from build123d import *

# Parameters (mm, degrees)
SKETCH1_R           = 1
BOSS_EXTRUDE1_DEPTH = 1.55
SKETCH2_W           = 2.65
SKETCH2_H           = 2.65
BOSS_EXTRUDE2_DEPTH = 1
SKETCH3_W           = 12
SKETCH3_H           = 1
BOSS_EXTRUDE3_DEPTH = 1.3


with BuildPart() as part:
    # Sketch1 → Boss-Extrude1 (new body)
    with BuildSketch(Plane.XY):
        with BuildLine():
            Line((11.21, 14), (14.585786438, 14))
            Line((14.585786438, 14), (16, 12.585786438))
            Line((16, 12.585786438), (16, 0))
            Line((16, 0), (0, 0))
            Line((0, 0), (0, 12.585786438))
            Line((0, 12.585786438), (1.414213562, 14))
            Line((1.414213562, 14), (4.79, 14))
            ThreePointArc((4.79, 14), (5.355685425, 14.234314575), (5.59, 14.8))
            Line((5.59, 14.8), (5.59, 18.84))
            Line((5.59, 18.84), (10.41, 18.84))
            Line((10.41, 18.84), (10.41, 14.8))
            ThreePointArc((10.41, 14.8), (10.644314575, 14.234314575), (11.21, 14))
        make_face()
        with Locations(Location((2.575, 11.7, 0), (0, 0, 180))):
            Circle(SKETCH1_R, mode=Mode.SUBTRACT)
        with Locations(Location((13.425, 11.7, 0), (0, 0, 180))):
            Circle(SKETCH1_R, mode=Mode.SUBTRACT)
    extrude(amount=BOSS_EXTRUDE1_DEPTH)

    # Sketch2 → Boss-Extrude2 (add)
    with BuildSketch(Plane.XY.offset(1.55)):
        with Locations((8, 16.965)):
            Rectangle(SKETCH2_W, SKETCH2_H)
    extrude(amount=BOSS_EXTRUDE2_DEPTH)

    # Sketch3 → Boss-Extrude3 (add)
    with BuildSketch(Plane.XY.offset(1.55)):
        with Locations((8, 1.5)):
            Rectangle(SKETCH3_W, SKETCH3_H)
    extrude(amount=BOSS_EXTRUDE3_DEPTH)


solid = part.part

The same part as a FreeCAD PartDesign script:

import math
import FreeCAD as App
import Part
import Sketcher
from FreeCAD import Vector


def add_polygon(sketch, points):
    """Adds a closed chain of lines whose ends are joined by coincident constraints."""
    first, n = sketch.GeometryCount, len(points)
    for a, b in zip(points, points[1:] + points[:1]):
        sketch.addGeometry(Part.LineSegment(App.Vector(*a, 0), App.Vector(*b, 0)), False)
    for i in range(n):
        sketch.addConstraint(Sketcher.Constraint("Coincident", first + i, 2, first + (i + 1) % n, 1))

doc = App.newDocument("Part")
body = doc.addObject("PartDesign::Body", "Body")

# Sketch on XY plane
sketch1 = body.newObject("Sketcher::SketchObject", "Sketch")
sketch1.AttachmentSupport = (doc.getObject("XY_Plane"), [""])
sketch1.MapMode = "FlatFace"
sketch1.addGeometry([
    Part.LineSegment(Vector(14.6, 14, 0), Vector(11.2, 14, 0)),  # 0
    Part.ArcOfCircle(Part.Circle(Vector(11.2, 14.8, 0), Vector(0, 0, 1), 0.8), math.radians(180), math.radians(270)),  # 1
    Part.LineSegment(Vector(10.4, 14.8, 0), Vector(10.4, 18.8, 0)),  # 2
    Part.LineSegment(Vector(10.4, 18.8, 0), Vector(5.6, 18.8, 0)),  # 3
    Part.LineSegment(Vector(5.6, 18.8, 0), Vector(5.6, 14.8, 0)),  # 4
    Part.ArcOfCircle(Part.Circle(Vector(4.8, 14.8, 0), Vector(0, 0, 1), 0.8), math.radians(-90), math.radians(0)),  # 5
    Part.LineSegment(Vector(4.8, 14, 0), Vector(1.4, 14, 0)),  # 6
    Part.LineSegment(Vector(1.4, 14, 0), Vector(0, 12.6, 0)),  # 7
    Part.LineSegment(Vector(0, 12.6, 0), Vector(0, 0, 0)),  # 8
    Part.LineSegment(Vector(0, 0, 0), Vector(16, 0, 0)),  # 9
    Part.LineSegment(Vector(16, 0, 0), Vector(16, 12.6, 0)),  # 10
    Part.LineSegment(Vector(16, 12.6, 0), Vector(14.6, 14, 0)),  # 11
    Part.Circle(Vector(13.4, 11.7, 0), Vector(0, 0, 1), 1),  # 12
    Part.Circle(Vector(2.6, 11.7, 0), Vector(0, 0, 1), 1),  # 13
], False)
sketch1.addConstraint([
    Sketcher.Constraint("Tangent", 0, 2, 1, 2),
    Sketcher.Constraint("Tangent", 1, 1, 2, 1),
    Sketcher.Constraint("Coincident", 2, 2, 3, 1),
    Sketcher.Constraint("Coincident", 3, 2, 4, 1),
    Sketcher.Constraint("Tangent", 4, 2, 5, 2),
    Sketcher.Constraint("Tangent", 5, 1, 6, 1),
    Sketcher.Constraint("Coincident", 6, 2, 7, 1),
    Sketcher.Constraint("Coincident", 7, 2, 8, 1),
    Sketcher.Constraint("Coincident", 8, 2, 9, 1),
    Sketcher.Constraint("Coincident", 9, 2, 10, 1),
    Sketcher.Constraint("Coincident", 10, 2, 11, 1),
    Sketcher.Constraint("Coincident", 11, 2, 0, 1),
    Sketcher.Constraint("Horizontal", 0),
    Sketcher.Constraint("Vertical", 2),
    Sketcher.Constraint("Horizontal", 3),
    Sketcher.Constraint("Vertical", 4),
    Sketcher.Constraint("Horizontal", 6),
    Sketcher.Constraint("Vertical", 8),
    Sketcher.Constraint("Horizontal", 9),
    Sketcher.Constraint("Vertical", 10),
    Sketcher.Constraint("Coincident", 8, 2, -1, 1),
    Sketcher.Constraint("Equal", 1, 5),
    Sketcher.Constraint("Equal", 12, 13),
    Sketcher.Constraint("Perpendicular", 7, 11),
    Sketcher.Constraint("Horizontal", 1, 3, 5, 3),
    Sketcher.Constraint("Horizontal", 12, 3, 13, 3),
    Sketcher.Constraint("Horizontal", 7, 2, 10, 2),
    Sketcher.Constraint("Equal", 0, 6),
    Sketcher.Constraint("Equal", 7, 11),
    Sketcher.Constraint("Diameter", 12, 2.0),
    Sketcher.Constraint("Radius", 1, 0.8),
    Sketcher.Constraint("DistanceX", 9, 1, 9, 2, 16.0),
    Sketcher.Constraint("Distance", 7, 2.0),
    Sketcher.Constraint("DistanceY", -1, 1, 0, 2, 14.0),
    Sketcher.Constraint("DistanceX", 3, 2, 3, 1, 4.82),
    Sketcher.Constraint("DistanceY", 2, 1, 2, 2, 4.04),
    Sketcher.Constraint("DistanceY", -1, 1, 12, 3, 11.7),
    Sketcher.Constraint("DistanceX", 13, 3, 12, 3, 10.85),
    Sketcher.Constraint("DistanceX", -1, 1, 12, 3, 13.425),
])
pad1 = body.newObject("PartDesign::Pad", "Pad")
pad1.Profile = sketch1
pad1.Length = 1.55

# Sketch on XY plane
sketch2 = body.newObject("Sketcher::SketchObject", "Sketch001")
sketch2.AttachmentSupport = (doc.getObject("XY_Plane"), [""])
sketch2.MapMode = "FlatFace"
sketch2.AttachmentOffset = App.Placement(Vector(0, 0, 1.55), App.Rotation())
add_polygon(sketch2, [(6.7, 18.3), (6.7, 15.6), (9.3, 15.6), (9.3, 18.3)])  # lines 0-3
sketch2.addConstraint([
    Sketcher.Constraint("Vertical", 0),
    Sketcher.Constraint("Horizontal", 1),
    Sketcher.Constraint("Vertical", 2),
    Sketcher.Constraint("Horizontal", 3),
    Sketcher.Constraint("Equal", 3, 0),
    Sketcher.Constraint("DistanceX", 1, 1, 1, 2, 2.65),
    Sketcher.Constraint("DistanceY", -1, 1, 0, 2, 15.64),
    Sketcher.Constraint("DistanceX", -1, 1, 0, 2, 6.675),
])
pad2 = body.newObject("PartDesign::Pad", "Pad001")
pad2.Profile = sketch2
pad2.Length = 1

# Sketch on XY plane
sketch3 = body.newObject("Sketcher::SketchObject", "Sketch002")
sketch3.AttachmentSupport = (doc.getObject("XY_Plane"), [""])
sketch3.MapMode = "FlatFace"
sketch3.AttachmentOffset = App.Placement(Vector(0, 0, 1.55), App.Rotation())
add_polygon(sketch3, [(2, 2), (2, 1), (14, 1), (14, 2)])  # lines 0-3
sketch3.addConstraint([
    Sketcher.Constraint("Vertical", 0),
    Sketcher.Constraint("Horizontal", 1),
    Sketcher.Constraint("Vertical", 2),
    Sketcher.Constraint("Horizontal", 3),
    Sketcher.Constraint("DistanceX", 1, 1, 1, 2, 12.0),
    Sketcher.Constraint("DistanceY", 0, 2, 0, 1, 1.0),
    Sketcher.Constraint("DistanceX", -1, 1, 0, 2, 2.0),
    Sketcher.Constraint("DistanceY", -1, 1, 0, 2, 1.0),
])
pad3 = body.newObject("PartDesign::Pad", "Pad002")
pad3.Profile = sketch3
pad3.Length = 1.3

doc.recompute()
